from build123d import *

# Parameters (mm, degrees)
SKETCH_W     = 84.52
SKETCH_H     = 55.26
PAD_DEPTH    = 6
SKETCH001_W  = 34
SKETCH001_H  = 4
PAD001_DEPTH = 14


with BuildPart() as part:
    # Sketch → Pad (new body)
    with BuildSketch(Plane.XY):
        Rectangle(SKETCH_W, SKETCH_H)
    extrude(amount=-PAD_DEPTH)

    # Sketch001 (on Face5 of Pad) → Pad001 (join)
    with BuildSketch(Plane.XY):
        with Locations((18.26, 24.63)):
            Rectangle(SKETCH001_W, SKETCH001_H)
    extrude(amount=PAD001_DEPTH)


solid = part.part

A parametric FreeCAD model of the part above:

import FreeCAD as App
import Part
import Sketcher


def add_polygon(sketch, points):
    """Adds a closed chain of lines whose ends are joined by coincident constraints."""
    first, n = sketch.GeometryCount, len(points)
    for a, b in zip(points, points[1:] + points[:1]):
        sketch.addGeometry(Part.LineSegment(App.Vector(*a, 0), App.Vector(*b, 0)), False)
    for i in range(n):
        sketch.addConstraint(Sketcher.Constraint("Coincident", first + i, 2, first + (i + 1) % n, 1))

doc = App.newDocument("Part")
params = doc.addObject("Spreadsheet::Sheet", "Params")
for row, (alias, value) in enumerate([
    ("sketch1_width", "84.52 mm"),
    ("sketch1_height", "55.26 mm"),
    ("pad1_length", "6 mm"),
    ("sketch2_width", "34 mm"),
    ("sketch2_height", "4 mm"),
    ("pad2_length", "14 mm"),
], start=1):
    params.set(f"A{row}", alias)
    params.set(f"B{row}", "=" + value)
    params.setAlias(f"B{row}", alias)

body = doc.addObject("PartDesign::Body", "Body")

# Sketch on XY plane
sketch1 = body.newObject("Sketcher::SketchObject", "Sketch")
sketch1.AttachmentSupport = (doc.getObject("XY_Plane"), [""])
sketch1.MapMode = "FlatFace"
add_polygon(sketch1, [(-42, 28), (-42, -28), (42, -28), (42, 28)])  # lines 0-3
sketch1.addConstraint([
    Sketcher.Constraint("Vertical", 0),
    Sketcher.Constraint("Horizontal", 1),
    Sketcher.Constraint("Vertical", 2),
    Sketcher.Constraint("Horizontal", 3),
    Sketcher.Constraint("Symmetric", 0, 2, 2, 2, -1, 1),
    Sketcher.Constraint("DistanceX", 1, 1, 1, 2, 84.52),
    Sketcher.Constraint("DistanceY", 0, 2, 0, 1, 55.26),
])
sketch1.setExpression("Constraints[9]", "Params.sketch1_width")
sketch1.setExpression("Constraints[10]", "Params.sketch1_height")
pad1 = body.newObject("PartDesign::Pad", "Pad")
pad1.Profile = sketch1
pad1.setExpression("Length", "Params.pad1_length")
pad1.Reversed = True

# Sketch on XY plane
sketch2 = body.newObject("Sketcher::SketchObject", "Sketch001")
sketch2.AttachmentSupport = (doc.getObject("XY_Plane"), [""])
sketch2.MapMode = "FlatFace"
add_polygon(sketch2, [(1.3, 26.6), (1.3, 22.6), (35.3, 22.6), (35.3, 26.6)])  # lines 0-3
sketch2.addConstraint([
    Sketcher.Constraint("Vertical", 0),
    Sketcher.Constraint("Horizontal", 1),
    Sketcher.Constraint("Vertical", 2),
    Sketcher.Constraint("Horizontal", 3),
    Sketcher.Constraint("DistanceX", 1, 1, 1, 2, 34.0),
    Sketcher.Constraint("DistanceY", 0, 2, 0, 1, 4.0),
    Sketcher.Constraint("DistanceX", -1, 1, 0, 2, 1.26),
    Sketcher.Constraint("DistanceY", -1, 1, 0, 2, 22.63),
])
sketch2.setExpression("Constraints[8]", "Params.sketch2_width")
sketch2.setExpression("Constraints[9]", "Params.sketch2_height")
pad2 = body.newObject("PartDesign::Pad", "Pad001")
pad2.Profile = sketch2
pad2.setExpression("Length", "Params.pad2_length")

doc.recompute()
